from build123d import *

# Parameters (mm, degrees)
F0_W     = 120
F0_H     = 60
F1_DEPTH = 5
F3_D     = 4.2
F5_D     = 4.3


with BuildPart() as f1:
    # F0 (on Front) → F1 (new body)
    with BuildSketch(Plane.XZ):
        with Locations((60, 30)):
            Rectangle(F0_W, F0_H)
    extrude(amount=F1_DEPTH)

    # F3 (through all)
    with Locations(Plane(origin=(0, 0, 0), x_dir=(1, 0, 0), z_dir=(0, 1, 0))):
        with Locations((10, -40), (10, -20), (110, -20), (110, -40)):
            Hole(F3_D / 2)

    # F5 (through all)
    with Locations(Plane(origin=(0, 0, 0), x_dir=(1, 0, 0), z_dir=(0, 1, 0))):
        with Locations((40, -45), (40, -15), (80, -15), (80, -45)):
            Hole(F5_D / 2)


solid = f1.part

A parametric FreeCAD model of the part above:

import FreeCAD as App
import Part
import Sketcher
Q = App.Units.Quantity


def add_polygon(sketch, points):
    """Adds a closed chain of lines whose ends are joined by coincident constraints."""
    first, n = sketch.GeometryCount, len(points)
    for a, b in zip(points, points[1:] + points[:1]):
        sketch.addGeometry(Part.LineSegment(App.Vector(*a, 0), App.Vector(*b, 0)), False)
    for i in range(n):
        sketch.addConstraint(Sketcher.Constraint("Coincident", first + i, 2, first + (i + 1) % n, 1))

doc = App.newDocument("Part")
body = doc.addObject("PartDesign::Body", "Body")

# Sketch on XZ plane
sketch1 = doc.addObject("Sketcher::SketchObject", "Sketch")
body.addObject(sketch1)
sketch1.AttachmentSupport = (doc.XZ_Plane, [""])
sketch1.MapMode = "FlatFace"
add_polygon(sketch1, [(0, 60), (0, 0), (120, 0), (120, 60)])  # lines 0-3
sketch1.addConstraint(Sketcher.Constraint("Vertical", 0))
sketch1.addConstraint(Sketcher.Constraint("Horizontal", 1))
sketch1.addConstraint(Sketcher.Constraint("Vertical", 2))
sketch1.addConstraint(Sketcher.Constraint("Horizontal", 3))
sketch1.addConstraint(Sketcher.Constraint("Coincident", 0, 2, -1, 1))
sketch1.addConstraint(Sketcher.Constraint("DistanceX", 1, 1, 1, 2, Q("120 mm")))
sketch1.addConstraint(Sketcher.Constraint("DistanceY", 0, 2, 0, 1, Q("60 mm")))
pad1 = doc.addObject("PartDesign::Pad", "Pad")
body.addObject(pad1)
pad1.Profile = sketch1
pad1.Length = 5

# Sketch on XZ plane
sketch2 = doc.addObject("Sketcher::SketchObject", "Sketch001")
body.addObject(sketch2)
sketch2.AttachmentSupport = (doc.XZ_Plane, [""])
sketch2.MapMode = "FlatFace"
sketch2.addGeometry(Part.Circle(App.Vector(10, 40, 0), App.Vector(0, 0, 1), 2.1), False)
sketch2.addGeometry(Part.Circle(App.Vector(10, 20, 0), App.Vector(0, 0, 1), 2.1), False)
sketch2.addGeometry(Part.Circle(App.Vector(110, 20, 0), App.Vector(0, 0, 1), 2.1), False)
sketch2.addGeometry(Part.Circle(App.Vector(110, 40, 0), App.Vector(0, 0, 1), 2.1), False)
sketch2.addConstraint(Sketcher.Constraint("Equal", 0, 1))
sketch2.addConstraint(Sketcher.Constraint("Equal", 1, 2))
sketch2.addConstraint(Sketcher.Constraint("Equal", 2, 3))
sketch2.addConstraint(Sketcher.Constraint("Horizontal", 1, 3, 2, 3))
sketch2.addConstraint(Sketcher.Constraint("Horizontal", 0, 3, 3, 3))
sketch2.addConstraint(Sketcher.Constraint("Vertical", 0, 3, 1, 3))
sketch2.addConstraint(Sketcher.Constraint("Vertical", 2, 3, 3, 3))
sketch2.addConstraint(Sketcher.Constraint("Diameter", 0, Q("4.2 mm")))
sketch2.addConstraint(Sketcher.Constraint("DistanceX", -1, 1, 0, 3, Q("10 mm")))
sketch2.addConstraint(Sketcher.Constraint("DistanceY", -1, 1, 0, 3, Q("40 mm")))
sketch2.addConstraint(Sketcher.Constraint("DistanceY", -1, 1, 1, 3, Q("20 mm")))
sketch2.addConstraint(Sketcher.Constraint("DistanceX", -1, 1, 2, 3, Q("110 mm")))
doc.recompute()
hole = doc.addObject("PartDesign::Hole", "Hole")
body.addObject(hole)
hole.Profile = sketch2
hole.ThreadType = "None"
hole.Diameter = 4.2
hole.DepthType = "ThroughAll"
hole.Reversed = True

# Sketch on XZ plane
sketch3 = doc.addObject("Sketcher::SketchObject", "Sketch002")
body.addObject(sketch3)
sketch3.AttachmentSupport = (doc.XZ_Plane, [""])
sketch3.MapMode = "FlatFace"
sketch3.addGeometry(Part.Circle(App.Vector(40, 45, 0), App.Vector(0, 0, 1), 2.1), False)
sketch3.addGeometry(Part.Circle(App.Vector(40, 15, 0), App.Vector(0, 0, 1), 2.1), False)
sketch3.addGeometry(Part.Circle(App.Vector(80, 15, 0), App.Vector(0, 0, 1), 2.1), False)
sketch3.addGeometry(Part.Circle(App.Vector(80, 45, 0), App.Vector(0, 0, 1), 2.1), False)
sketch3.addConstraint(Sketcher.Constraint("Equal", 0, 1))
sketch3.addConstraint(Sketcher.Constraint("Equal", 1, 2))
sketch3.addConstraint(Sketcher.Constraint("Equal", 2, 3))
sketch3.addConstraint(Sketcher.Constraint("Horizontal", 1, 3, 2, 3))
sketch3.addConstraint(Sketcher.Constraint("Horizontal", 0, 3, 3, 3))
sketch3.addConstraint(Sketcher.Constraint("Vertical", 0, 3, 1, 3))
sketch3.addConstraint(Sketcher.Constraint("Vertical", 2, 3, 3, 3))
sketch3.addConstraint(Sketcher.Constraint("Diameter", 0, Q("4.3 mm")))
sketch3.addConstraint(Sketcher.Constraint("DistanceX", -1, 1, 0, 3, Q("40 mm")))
sketch3.addConstraint(Sketcher.Constraint("DistanceY", -1, 1, 0, 3, Q("45 mm")))
sketch3.addConstraint(Sketcher.Constraint("DistanceY", -1, 1, 1, 3, Q("15 mm")))
sketch3.addConstraint(Sketcher.Constraint("DistanceX", -1, 1, 2, 3, Q("80 mm")))
doc.recompute()
hole2 = doc.addObject("PartDesign::Hole", "Hole001")
body.addObject(hole2)
hole2.Profile = sketch3
hole2.ThreadType = "None"
hole2.Diameter = 4.3
hole2.DepthType = "ThroughAll"
hole2.Reversed = True

doc.recompute()
